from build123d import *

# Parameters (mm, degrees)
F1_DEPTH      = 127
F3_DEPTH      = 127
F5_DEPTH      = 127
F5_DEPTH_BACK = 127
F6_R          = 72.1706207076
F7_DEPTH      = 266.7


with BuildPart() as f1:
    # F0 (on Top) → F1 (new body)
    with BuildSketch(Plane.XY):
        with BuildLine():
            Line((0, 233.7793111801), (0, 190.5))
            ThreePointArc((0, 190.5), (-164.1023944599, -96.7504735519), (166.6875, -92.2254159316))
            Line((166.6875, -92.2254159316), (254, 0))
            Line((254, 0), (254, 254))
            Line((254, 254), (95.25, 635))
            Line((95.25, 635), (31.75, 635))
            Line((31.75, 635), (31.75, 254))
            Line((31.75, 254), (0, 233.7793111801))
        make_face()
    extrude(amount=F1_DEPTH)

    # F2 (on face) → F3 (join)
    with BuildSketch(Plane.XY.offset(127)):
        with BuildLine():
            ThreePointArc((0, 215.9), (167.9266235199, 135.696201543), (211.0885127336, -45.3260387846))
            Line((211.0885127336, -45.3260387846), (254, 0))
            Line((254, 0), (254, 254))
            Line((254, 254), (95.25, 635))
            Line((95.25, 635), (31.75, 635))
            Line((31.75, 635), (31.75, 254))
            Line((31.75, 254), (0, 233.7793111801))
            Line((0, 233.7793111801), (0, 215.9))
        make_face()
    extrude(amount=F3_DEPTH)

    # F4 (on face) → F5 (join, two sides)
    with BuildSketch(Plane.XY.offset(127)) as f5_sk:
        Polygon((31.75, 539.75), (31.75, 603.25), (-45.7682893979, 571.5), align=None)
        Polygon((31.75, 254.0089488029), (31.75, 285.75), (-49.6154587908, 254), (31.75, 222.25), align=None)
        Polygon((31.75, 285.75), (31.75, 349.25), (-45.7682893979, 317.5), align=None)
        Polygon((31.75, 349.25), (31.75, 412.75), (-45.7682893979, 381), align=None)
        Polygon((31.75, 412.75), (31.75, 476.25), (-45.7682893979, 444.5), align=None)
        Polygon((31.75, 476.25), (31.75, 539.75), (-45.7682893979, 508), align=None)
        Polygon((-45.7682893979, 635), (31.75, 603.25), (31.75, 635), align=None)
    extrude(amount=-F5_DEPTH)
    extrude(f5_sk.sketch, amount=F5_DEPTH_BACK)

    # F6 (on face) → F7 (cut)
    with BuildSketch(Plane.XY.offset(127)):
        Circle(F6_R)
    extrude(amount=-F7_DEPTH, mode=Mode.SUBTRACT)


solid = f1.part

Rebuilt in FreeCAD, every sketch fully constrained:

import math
import FreeCAD as App
import Part
import Sketcher
from FreeCAD import Vector
Q = App.Units.Quantity

doc = App.newDocument("Part")
body = doc.addObject("PartDesign::Body", "Body")

# Sketch on XY plane
sketch1 = body.newObject("Sketcher::SketchObject", "Sketch")
sketch1.AttachmentSupport = (doc.getObject("XY_Plane"), [""])
sketch1.MapMode = "FlatFace"
sketch1.addGeometry(Part.LineSegment(Vector(0, 234, 0), Vector(0, 190, 0)), False)
sketch1.addGeometry(Part.ArcOfCircle(Part.Circle(Vector(0, 0, 0), Vector(0, 0, 1), 190), math.radians(90), math.radians(331)), False)
sketch1.addGeometry(Part.LineSegment(Vector(167, -92, 0), Vector(254, 0, 0)), False)
sketch1.addGeometry(Part.LineSegment(Vector(254, 0, 0), Vector(254, 254, 0)), False)
sketch1.addGeometry(Part.LineSegment(Vector(254, 254, 0), Vector(95, 635, 0)), False)
sketch1.addGeometry(Part.LineSegment(Vector(95, 635, 0), Vector(32, 635, 0)), False)
sketch1.addGeometry(Part.LineSegment(Vector(32, 635, 0), Vector(32, 254, 0)), False)
sketch1.addGeometry(Part.LineSegment(Vector(32, 254, 0), Vector(0, 234, 0)), False)
sketch1.addConstraint(Sketcher.Constraint("Coincident", 0, 2, 1, 1))
sketch1.addConstraint(Sketcher.Constraint("Coincident", 1, 2, 2, 1))
sketch1.addConstraint(Sketcher.Constraint("Coincident", 2, 2, 3, 1))
sketch1.addConstraint(Sketcher.Constraint("Coincident", 3, 2, 4, 1))
sketch1.addConstraint(Sketcher.Constraint("Coincident", 4, 2, 5, 1))
sketch1.addConstraint(Sketcher.Constraint("Coincident", 5, 2, 6, 1))
sketch1.addConstraint(Sketcher.Constraint("Coincident", 6, 2, 7, 1))
sketch1.addConstraint(Sketcher.Constraint("Coincident", 7, 2, 0, 1))
sketch1.addConstraint(Sketcher.Constraint("Vertical", 0))
sketch1.addConstraint(Sketcher.Constraint("Vertical", 3))
sketch1.addConstraint(Sketcher.Constraint("Horizontal", 5))
sketch1.addConstraint(Sketcher.Constraint("Vertical", 6))
sketch1.addConstraint(Sketcher.Constraint("Coincident", 1, 3, -1, 1))
sketch1.addConstraint(Sketcher.Constraint("PointOnObject", 0, 2, -2))
sketch1.addConstraint(Sketcher.Constraint("PointOnObject", 2, 2, -1))
sketch1.addConstraint(Sketcher.Constraint("Horizontal", 3, 2, 6, 2))
sketch1.addConstraint(Sketcher.Constraint("Radius", 1, Q("7.5 in")))
sketch1.addConstraint(Sketcher.Constraint("DistanceY", 3, 1, 3, 2, Q("10 in")))
sketch1.addConstraint(Sketcher.Constraint("DistanceY", 6, 2, 6, 1, Q("15 in")))
sketch1.addConstraint(Sketcher.Constraint("Distance", 2, Q("5 in")))
sketch1.addConstraint(Sketcher.Constraint("DistanceX", 5, 2, 5, 1, Q("2.5 in")))
sketch1.addConstraint(Sketcher.Constraint("DistanceX", -1, 1, 2, 2, Q("10 in")))
sketch1.addConstraint(Sketcher.Constraint("Distance", 4, Q("16.25 in")))
sketch1.addConstraint(Sketcher.Constraint("DistanceY", 0, 2, 0, 1, Q("43.279311 mm")))
pad1 = body.newObject("PartDesign::Pad", "Pad")
pad1.Profile = sketch1
pad1.Length = Q("5 in")

# Sketch on XY plane
sketch2 = body.newObject("Sketcher::SketchObject", "Sketch001")
sketch2.AttachmentSupport = (doc.getObject("XY_Plane"), [""])
sketch2.MapMode = "FlatFace"
sketch2.AttachmentOffset = App.Placement(Vector(0, 0, 5 * 25.4), App.Rotation())
sketch2.addGeometry(Part.ArcOfCircle(Part.Circle(Vector(0, 0, 0), Vector(0, 0, 1), 216), math.radians(-12), math.radians(90)), False)
sketch2.addGeometry(Part.LineSegment(Vector(211, -45, 0), Vector(254, 0, 0)), False)
sketch2.addGeometry(Part.LineSegment(Vector(254, 0, 0), Vector(254, 254, 0)), False)
sketch2.addGeometry(Part.LineSegment(Vector(254, 254, 0), Vector(95, 635, 0)), False)
sketch2.addGeometry(Part.LineSegment(Vector(95, 635, 0), Vector(32, 635, 0)), False)
sketch2.addGeometry(Part.LineSegment(Vector(32, 635, 0), Vector(32, 254, 0)), False)
sketch2.addGeometry(Part.LineSegment(Vector(32, 254, 0), Vector(0, 234, 0)), False)
sketch2.addGeometry(Part.LineSegment(Vector(0, 234, 0), Vector(0, 216, 0)), False)
sketch2.addConstraint(Sketcher.Constraint("Coincident", 0, 1, 1, 1))
sketch2.addConstraint(Sketcher.Constraint("Coincident", 1, 2, 2, 1))
sketch2.addConstraint(Sketcher.Constraint("Coincident", 2, 2, 3, 1))
sketch2.addConstraint(Sketcher.Constraint("Coincident", 3, 2, 4, 1))
sketch2.addConstraint(Sketcher.Constraint("Coincident", 4, 2, 5, 1))
sketch2.addConstraint(Sketcher.Constraint("Coincident", 5, 2, 6, 1))
sketch2.addConstraint(Sketcher.Constraint("Coincident", 6, 2, 7, 1))
sketch2.addConstraint(Sketcher.Constraint("Coincident", 7, 2, 0, 2))
sketch2.addConstraint(Sketcher.Constraint("Vertical", 2))
sketch2.addConstraint(Sketcher.Constraint("Horizontal", 4))
sketch2.addConstraint(Sketcher.Constraint("Vertical", 5))
sketch2.addConstraint(Sketcher.Constraint("Vertical", 7))
sketch2.addConstraint(Sketcher.Constraint("Coincident", 0, 3, -1, 1))
sketch2.addConstraint(Sketcher.Constraint("PointOnObject", 1, 2, -1))
sketch2.addConstraint(Sketcher.Constraint("PointOnObject", 6, 2, -2))
sketch2.addConstraint(Sketcher.Constraint("Horizontal", 2, 2, 5, 2))
sketch2.addConstraint(Sketcher.Constraint("Radius", 0, Q("8.5 in")))
sketch2.addConstraint(Sketcher.Constraint("DistanceY", 2, 1, 2, 2, Q("10 in")))
sketch2.addConstraint(Sketcher.Constraint("DistanceY", 5, 2, 5, 1, Q("15 in")))
sketch2.addConstraint(Sketcher.Constraint("DistanceX", 4, 2, 4, 1, Q("2.5 in")))
sketch2.addConstraint(Sketcher.Constraint("DistanceX", -1, 1, 1, 2, Q("10 in")))
sketch2.addConstraint(Sketcher.Constraint("Distance", 3, Q("16.25 in")))
sketch2.addConstraint(Sketcher.Constraint("DistanceY", 7, 2, 7, 1, Q("17.879311 mm")))
sketch2.addConstraint(Sketcher.Constraint("Distance", 1, Q("62.416709 mm")))
pad2 = body.newObject("PartDesign::Pad", "Pad001")
pad2.Profile = sketch2
pad2.Length = Q("5 in")

# Sketch on XY plane
sketch3 = body.newObject("Sketcher::SketchObject", "Sketch002")
sketch3.AttachmentSupport = (doc.getObject("XY_Plane"), [""])
sketch3.MapMode = "FlatFace"
sketch3.AttachmentOffset = App.Placement(Vector(0, 0, 5 * 25.4), App.Rotation())
sketch3.addGeometry(Part.LineSegment(Vector(32, 540, 0), Vector(32, 603, 0)), False)
sketch3.addGeometry(Part.LineSegment(Vector(32, 603, 0), Vector(-46, 572, 0)), False)
sketch3.addGeometry(Part.LineSegment(Vector(-46, 572, 0), Vector(32, 540, 0)), False)
sketch3.addGeometry(Part.LineSegment(Vector(32, 286, 0), Vector(-50, 254, 0)), False)
sketch3.addGeometry(Part.LineSegment(Vector(-50, 254, 0), Vector(32, 222, 0)), False)
sketch3.addGeometry(Part.LineSegment(Vector(32, 222, 0), Vector(32, 286, 0)), False)
sketch3.addGeometry(Part.LineSegment(Vector(32, 286, 0), Vector(32, 349, 0)), False)
sketch3.addGeometry(Part.LineSegment(Vector(32, 349, 0), Vector(-46, 318, 0)), False)
sketch3.addGeometry(Part.LineSegment(Vector(-46, 318, 0), Vector(32, 286, 0)), False)
sketch3.addGeometry(Part.LineSegment(Vector(32, 349, 0), Vector(32, 413, 0)), False)
sketch3.addGeometry(Part.LineSegment(Vector(32, 413, 0), Vector(-46, 381, 0)), False)
sketch3.addGeometry(Part.LineSegment(Vector(-46, 381, 0), Vector(32, 349, 0)), False)
sketch3.addGeometry(Part.LineSegment(Vector(32, 413, 0), Vector(32, 476, 0)), False)
sketch3.addGeometry(Part.LineSegment(Vector(32, 476, 0), Vector(-46, 444, 0)), False)
sketch3.addGeometry(Part.LineSegment(Vector(-46, 444, 0), Vector(32, 413, 0)), False)
sketch3.addGeometry(Part.LineSegment(Vector(32, 476, 0), Vector(32, 540, 0)), False)
sketch3.addGeometry(Part.LineSegment(Vector(32, 540, 0), Vector(-46, 508, 0)), False)
sketch3.addGeometry(Part.LineSegment(Vector(-46, 508, 0), Vector(32, 476, 0)), False)
sketch3.addGeometry(Part.LineSegment(Vector(-46, 635, 0), Vector(32, 603, 0)), False)
sketch3.addGeometry(Part.LineSegment(Vector(32, 603, 0), Vector(32, 635, 0)), False)
sketch3.addGeometry(Part.LineSegment(Vector(32, 635, 0), Vector(-46, 635, 0)), False)
sketch3.addConstraint(Sketcher.Constraint("Coincident", 0, 2, 1, 1))
sketch3.addConstraint(Sketcher.Constraint("Coincident", 1, 2, 2, 1))
sketch3.addConstraint(Sketcher.Constraint("Coincident", 2, 2, 0, 1))
sketch3.addConstraint(Sketcher.Constraint("Coincident", 3, 2, 4, 1))
sketch3.addConstraint(Sketcher.Constraint("Coincident", 4, 2, 5, 1))
sketch3.addConstraint(Sketcher.Constraint("Coincident", 5, 2, 3, 1))
sketch3.addConstraint(Sketcher.Constraint("Coincident", 6, 2, 7, 1))
sketch3.addConstraint(Sketcher.Constraint("Coincident", 7, 2, 8, 1))
sketch3.addConstraint(Sketcher.Constraint("Coincident", 8, 2, 6, 1))
sketch3.addConstraint(Sketcher.Constraint("Coincident", 9, 2, 10, 1))
sketch3.addConstraint(Sketcher.Constraint("Coincident", 10, 2, 11, 1))
sketch3.addConstraint(Sketcher.Constraint("Coincident", 11, 2, 9, 1))
sketch3.addConstraint(Sketcher.Constraint("Coincident", 12, 2, 13, 1))
sketch3.addConstraint(Sketcher.Constraint("Coincident", 13, 2, 14, 1))
sketch3.addConstraint(Sketcher.Constraint("Coincident", 14, 2, 12, 1))
sketch3.addConstraint(Sketcher.Constraint("Coincident", 15, 2, 16, 1))
sketch3.addConstraint(Sketcher.Constraint("Coincident", 16, 2, 17, 1))
sketch3.addConstraint(Sketcher.Constraint("Coincident", 17, 2, 15, 1))
sketch3.addConstraint(Sketcher.Constraint("Coincident", 18, 2, 19, 1))
sketch3.addConstraint(Sketcher.Constraint("Coincident", 19, 2, 20, 1))
sketch3.addConstraint(Sketcher.Constraint("Coincident", 20, 2, 18, 1))
sketch3.addConstraint(Sketcher.Constraint("Vertical", 0))
sketch3.addConstraint(Sketcher.Constraint("Vertical", 5))
sketch3.addConstraint(Sketcher.Constraint("Vertical", 6))
sketch3.addConstraint(Sketcher.Constraint("Vertical", 9))
sketch3.addConstraint(Sketcher.Constraint("Vertical", 12))
sketch3.addConstraint(Sketcher.Constraint("Vertical", 15))
sketch3.addConstraint(Sketcher.Constraint("Vertical", 19))
sketch3.addConstraint(Sketcher.Constraint("Horizontal", 20))
sketch3.addConstraint(Sketcher.Constraint("Coincident", 8, 2, 5, 2))
sketch3.addConstraint(Sketcher.Constraint("Coincident", 11, 2, 6, 2))
sketch3.addConstraint(Sketcher.Constraint("Coincident", 14, 2, 9, 2))
sketch3.addConstraint(Sketcher.Constraint("Coincident", 15, 2, 2, 2))
sketch3.addConstraint(Sketcher.Constraint("Coincident", 17, 2, 12, 2))
sketch3.addConstraint(Sketcher.Constraint("Coincident", 18, 2, 0, 2))
sketch3.addConstraint(Sketcher.Constraint("Parallel", 1, 7))
sketch3.addConstraint(Sketcher.Constraint("Parallel", 2, 8))
sketch3.addConstraint(Sketcher.Constraint("Parallel", 7, 10))
sketch3.addConstraint(Sketcher.Constraint("Parallel", 8, 11))
sketch3.addConstraint(Sketcher.Constraint("Parallel", 10, 13))
sketch3.addConstraint(Sketcher.Constraint("Parallel", 11, 14))
sketch3.addConstraint(Sketcher.Constraint("Parallel", 13, 16))
sketch3.addConstraint(Sketcher.Constraint("Parallel", 14, 17))
sketch3.addConstraint(Sketcher.Constraint("Parallel", 17, 18))
sketch3.addConstraint(Sketcher.Constraint("Vertical", 1, 2, 7, 2))
sketch3.addConstraint(Sketcher.Constraint("Vertical", 7, 2, 10, 2))
sketch3.addConstraint(Sketcher.Constraint("Vertical", 10, 2, 13, 2))
sketch3.addConstraint(Sketcher.Constraint("Vertical", 13, 2, 16, 2))
sketch3.addConstraint(Sketcher.Constraint("Vertical", 16, 2, 20, 2))
sketch3.addConstraint(Sketcher.Constraint("Equal", 0, 5))
sketch3.addConstraint(Sketcher.Constraint("Equal", 1, 2))
sketch3.addConstraint(Sketcher.Constraint("Equal", 3, 4))
sketch3.addConstraint(Sketcher.Constraint("DistanceY", 0, 1, 0, 2, Q("2.5 in")))
sketch3.addConstraint(Sketcher.Constraint("DistanceY", -1, 1, 3, 2, Q("10 in")))
sketch3.addConstraint(Sketcher.Constraint("DistanceX", -1, 1, 0, 2, Q("1.25 in")))
sketch3.addConstraint(Sketcher.Constraint("DistanceX", 20, 2, 20, 1, Q("77.518289 mm")))
sketch3.addConstraint(Sketcher.Constraint("DistanceX", 3, 2, -1, 1, Q("49.615459 mm")))
pad3 = body.newObject("PartDesign::Pad", "Pad002")
pad3.Profile = sketch3
pad3.Type = "TwoLengths"
pad3.Length = Q("5 in")
pad3.Length2 = Q("5 in")
pad3.Reversed = True

# Sketch on XY plane
sketch4 = body.newObject("Sketcher::SketchObject", "Sketch003")
sketch4.AttachmentSupport = (doc.getObject("XY_Plane"), [""])
sketch4.MapMode = "FlatFace"
sketch4.AttachmentOffset = App.Placement(Vector(0, 0, 5 * 25.4), App.Rotation())
sketch4.addGeometry(Part.Circle(Vector(0, 0, 0), Vector(0, 0, 1), 72), False)
sketch4.addConstraint(Sketcher.Constraint("Coincident", 0, 3, -1, 1))
sketch4.addConstraint(Sketcher.Constraint("Diameter", 0, Q("144.341241 mm")))
pocket1 = body.newObject("PartDesign::Pocket", "Pocket")
pocket1.Profile = sketch4
pocket1.Length = Q("10.5 in")

doc.recompute()
